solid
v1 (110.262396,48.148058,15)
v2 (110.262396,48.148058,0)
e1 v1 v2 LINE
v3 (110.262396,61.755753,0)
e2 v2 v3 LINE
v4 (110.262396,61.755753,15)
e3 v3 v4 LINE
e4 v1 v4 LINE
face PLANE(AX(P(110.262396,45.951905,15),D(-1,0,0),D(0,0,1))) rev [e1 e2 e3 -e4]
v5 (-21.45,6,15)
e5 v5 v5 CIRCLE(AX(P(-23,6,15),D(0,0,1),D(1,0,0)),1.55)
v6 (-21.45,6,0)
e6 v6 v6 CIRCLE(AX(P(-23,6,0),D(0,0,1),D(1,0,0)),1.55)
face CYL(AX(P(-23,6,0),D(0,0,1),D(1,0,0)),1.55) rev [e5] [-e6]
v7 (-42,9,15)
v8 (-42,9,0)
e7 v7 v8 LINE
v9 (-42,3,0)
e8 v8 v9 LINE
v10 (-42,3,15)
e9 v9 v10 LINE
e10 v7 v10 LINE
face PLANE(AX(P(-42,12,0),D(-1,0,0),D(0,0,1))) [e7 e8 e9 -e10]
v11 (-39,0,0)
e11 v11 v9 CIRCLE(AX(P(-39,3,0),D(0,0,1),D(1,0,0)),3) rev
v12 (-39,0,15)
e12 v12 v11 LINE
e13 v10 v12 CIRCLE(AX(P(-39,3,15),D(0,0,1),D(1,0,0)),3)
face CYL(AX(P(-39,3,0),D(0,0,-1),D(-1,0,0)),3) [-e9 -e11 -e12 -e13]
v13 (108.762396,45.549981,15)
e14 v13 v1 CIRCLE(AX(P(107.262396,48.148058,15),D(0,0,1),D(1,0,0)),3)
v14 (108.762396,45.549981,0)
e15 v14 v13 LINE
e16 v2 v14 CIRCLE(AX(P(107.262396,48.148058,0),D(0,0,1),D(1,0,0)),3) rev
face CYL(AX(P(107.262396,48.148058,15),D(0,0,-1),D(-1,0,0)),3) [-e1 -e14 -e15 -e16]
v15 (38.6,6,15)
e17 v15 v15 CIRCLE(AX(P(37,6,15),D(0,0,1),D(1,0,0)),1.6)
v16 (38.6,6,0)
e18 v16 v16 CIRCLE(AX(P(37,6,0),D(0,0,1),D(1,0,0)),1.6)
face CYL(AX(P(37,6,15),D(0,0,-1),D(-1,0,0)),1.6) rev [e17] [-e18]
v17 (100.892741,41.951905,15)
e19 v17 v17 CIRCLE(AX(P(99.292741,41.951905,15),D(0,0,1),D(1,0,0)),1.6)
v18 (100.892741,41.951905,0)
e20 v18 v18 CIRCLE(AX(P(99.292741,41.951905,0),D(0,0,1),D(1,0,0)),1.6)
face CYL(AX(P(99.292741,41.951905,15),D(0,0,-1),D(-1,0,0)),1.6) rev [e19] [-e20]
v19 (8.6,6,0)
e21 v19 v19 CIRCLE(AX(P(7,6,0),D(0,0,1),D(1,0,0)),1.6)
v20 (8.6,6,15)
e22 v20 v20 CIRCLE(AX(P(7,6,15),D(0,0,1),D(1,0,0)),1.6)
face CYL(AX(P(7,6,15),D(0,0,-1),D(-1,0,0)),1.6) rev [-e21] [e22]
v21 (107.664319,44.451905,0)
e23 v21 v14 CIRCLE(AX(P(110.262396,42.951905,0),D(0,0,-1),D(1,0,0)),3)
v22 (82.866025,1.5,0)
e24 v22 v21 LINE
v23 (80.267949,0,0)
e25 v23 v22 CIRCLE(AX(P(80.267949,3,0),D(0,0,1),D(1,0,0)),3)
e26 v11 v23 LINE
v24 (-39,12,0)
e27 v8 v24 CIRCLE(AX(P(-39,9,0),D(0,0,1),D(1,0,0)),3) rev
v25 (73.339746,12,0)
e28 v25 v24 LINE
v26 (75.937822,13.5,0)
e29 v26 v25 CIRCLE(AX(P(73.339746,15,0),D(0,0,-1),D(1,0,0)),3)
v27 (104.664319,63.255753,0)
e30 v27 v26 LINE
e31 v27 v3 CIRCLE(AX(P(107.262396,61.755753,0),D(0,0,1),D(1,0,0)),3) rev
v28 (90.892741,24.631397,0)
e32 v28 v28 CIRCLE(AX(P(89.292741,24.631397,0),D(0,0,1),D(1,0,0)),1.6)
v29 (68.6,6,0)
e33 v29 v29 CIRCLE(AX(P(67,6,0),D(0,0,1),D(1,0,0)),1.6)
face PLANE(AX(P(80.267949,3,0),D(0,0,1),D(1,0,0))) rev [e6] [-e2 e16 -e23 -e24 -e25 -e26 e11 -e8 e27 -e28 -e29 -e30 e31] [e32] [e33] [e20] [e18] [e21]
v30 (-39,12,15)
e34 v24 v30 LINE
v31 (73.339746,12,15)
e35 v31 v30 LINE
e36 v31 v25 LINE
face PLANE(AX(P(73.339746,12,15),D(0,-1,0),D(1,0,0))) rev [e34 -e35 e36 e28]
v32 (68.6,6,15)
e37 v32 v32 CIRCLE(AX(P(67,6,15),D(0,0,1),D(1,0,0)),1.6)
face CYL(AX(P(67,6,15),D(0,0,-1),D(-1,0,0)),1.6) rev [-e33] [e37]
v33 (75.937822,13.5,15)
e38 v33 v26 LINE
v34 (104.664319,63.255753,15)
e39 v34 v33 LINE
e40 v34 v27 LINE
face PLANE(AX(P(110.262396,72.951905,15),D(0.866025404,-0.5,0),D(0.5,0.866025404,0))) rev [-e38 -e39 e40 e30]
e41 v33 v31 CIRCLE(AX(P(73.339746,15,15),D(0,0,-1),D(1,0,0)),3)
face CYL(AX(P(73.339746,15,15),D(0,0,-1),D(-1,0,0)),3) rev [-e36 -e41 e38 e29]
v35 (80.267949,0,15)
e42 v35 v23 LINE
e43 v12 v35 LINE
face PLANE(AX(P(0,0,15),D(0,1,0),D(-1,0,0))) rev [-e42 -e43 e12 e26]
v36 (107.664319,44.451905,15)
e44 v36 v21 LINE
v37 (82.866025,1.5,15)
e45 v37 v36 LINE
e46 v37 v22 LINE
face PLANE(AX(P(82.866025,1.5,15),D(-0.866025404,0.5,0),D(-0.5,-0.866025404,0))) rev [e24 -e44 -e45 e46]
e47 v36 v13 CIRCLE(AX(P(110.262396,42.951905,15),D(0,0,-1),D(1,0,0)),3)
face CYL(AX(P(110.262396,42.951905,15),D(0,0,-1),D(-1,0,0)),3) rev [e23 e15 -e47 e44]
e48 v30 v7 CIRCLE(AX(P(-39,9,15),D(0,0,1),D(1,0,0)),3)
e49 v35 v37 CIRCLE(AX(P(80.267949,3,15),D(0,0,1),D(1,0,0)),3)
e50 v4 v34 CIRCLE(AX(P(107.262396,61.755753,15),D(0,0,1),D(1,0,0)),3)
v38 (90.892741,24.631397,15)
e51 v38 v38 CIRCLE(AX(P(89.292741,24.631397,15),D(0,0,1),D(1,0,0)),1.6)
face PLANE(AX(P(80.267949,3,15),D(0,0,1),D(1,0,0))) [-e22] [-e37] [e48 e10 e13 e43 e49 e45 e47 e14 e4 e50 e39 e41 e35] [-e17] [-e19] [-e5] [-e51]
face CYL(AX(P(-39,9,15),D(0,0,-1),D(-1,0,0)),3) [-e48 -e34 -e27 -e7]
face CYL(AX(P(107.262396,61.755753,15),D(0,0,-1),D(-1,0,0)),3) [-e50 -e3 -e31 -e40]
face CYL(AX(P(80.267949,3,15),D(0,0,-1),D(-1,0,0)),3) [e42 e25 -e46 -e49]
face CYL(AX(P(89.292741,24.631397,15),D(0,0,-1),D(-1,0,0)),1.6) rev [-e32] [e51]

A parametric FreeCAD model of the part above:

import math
import FreeCAD as App
import Part
import Sketcher
from FreeCAD import Vector
Q = App.Units.Quantity


def edges_at(feature, points):
    """Names of the edges that pass closest to the given points."""
    edges = feature.Shape.Edges
    near = lambda p: min(range(len(edges)), key=lambda i: edges[i].distToShape(Part.Vertex(*p))[0])
    return sorted({f"Edge{near(p) + 1}" for p in points})


def add_polygon(sketch, points):
    """Adds a closed chain of lines whose ends are joined by coincident constraints."""
    first, n = sketch.GeometryCount, len(points)
    for a, b in zip(points, points[1:] + points[:1]):
        sketch.addGeometry(Part.LineSegment(App.Vector(*a, 0), App.Vector(*b, 0)), False)
    for i in range(n):
        sketch.addConstraint(Sketcher.Constraint("Coincident", first + i, 2, first + (i + 1) % n, 1))

doc = App.newDocument("Part")
body = doc.addObject("PartDesign::Body", "Body")

sketch1 = doc.addObject("Sketcher::SketchObject", "Sketch")
body.addObject(sketch1)
sketch1.AttachmentSupport = (doc.XY_Plane, [""])
sketch1.MapMode = "FlatFace"
sketch1.addGeometry([
    Part.LineSegment(Vector(110.3, 46, 0), Vector(110.3, 73, 0)),
    Part.LineSegment(Vector(110.3, 73, 0), Vector(75.9, 13.5, 0)),
    Part.ArcOfCircle(Part.Circle(Vector(73.3, 15, 0), Vector(0, 0, 1), 3), math.radians(-90), math.radians(-30)),
    Part.LineSegment(Vector(73.3, 12, 0), Vector(0, 12, 0)),
    Part.LineSegment(Vector(0, 12, 0), Vector(0, 0, 0)),
    Part.LineSegment(Vector(0, 0, 0), Vector(80.3, 0, 0)),
    Part.ArcOfCircle(Part.Circle(Vector(80.3, 3, 0), Vector(0, 0, 1), 3), math.radians(-90), math.radians(-30)),
    Part.LineSegment(Vector(82.9, 1.5, 0), Vector(107.7, 44.5, 0)),
    Part.ArcOfCircle(Part.Circle(Vector(110.3, 43, 0), Vector(0, 0, 1), 3), math.radians(90), math.radians(150)),
    Part.Circle(Vector(7, 6, 0), Vector(0, 0, 1), 1.6),
    Part.Circle(Vector(37, 6, 0), Vector(0, 0, 1), 1.6),
    Part.Circle(Vector(67, 6, 0), Vector(0, 0, 1), 1.6),
    Part.Circle(Vector(89.3, 24.6, 0), Vector(0, 0, 1), 1.6),
    Part.Circle(Vector(99.3, 42, 0), Vector(0, 0, 1), 1.6),
], False)
sketch1.addConstraint([
    Sketcher.Constraint("Coincident", 0, 2, 1, 1),
    Sketcher.Constraint("Tangent", 1, 2, 2, 2),
    Sketcher.Constraint("Tangent", 2, 1, 3, 1),
    Sketcher.Constraint("Coincident", 3, 2, 4, 1),
    Sketcher.Constraint("Coincident", 4, 2, 5, 1),
    Sketcher.Constraint("Tangent", 5, 2, 6, 1),
    Sketcher.Constraint("Tangent", 6, 2, 7, 1),
    Sketcher.Constraint("Tangent", 7, 2, 8, 2),
    Sketcher.Constraint("Coincident", 8, 1, 0, 1),
    Sketcher.Constraint("Vertical", 0),
    Sketcher.Constraint("Horizontal", 3),
    Sketcher.Constraint("Vertical", 4),
    Sketcher.Constraint("Horizontal", 5),
    Sketcher.Constraint("Coincident", 4, 2, -1, 1),
    Sketcher.Constraint("Equal", 2, 6),
    Sketcher.Constraint("Equal", 6, 8),
    Sketcher.Constraint("Equal", 9, 10),
    Sketcher.Constraint("Equal", 10, 11),
    Sketcher.Constraint("Equal", 11, 12),
    Sketcher.Constraint("Equal", 12, 13),
    Sketcher.Constraint("Parallel", 1, 7),
    Sketcher.Constraint("Horizontal", 9, 3, 10, 3),
    Sketcher.Constraint("Horizontal", 10, 3, 11, 3),
    Sketcher.Constraint("Vertical", 8, 3, 0, 2),
    Sketcher.Constraint("Radius", 2, Q("3 mm")),
    Sketcher.Constraint("Diameter", 9, Q("3.2 mm")),
    Sketcher.Constraint("DistanceY", 0, 1, 0, 2, Q("27 mm")),
    Sketcher.Constraint("DistanceY", 4, 2, 4, 1, Q("12 mm")),
    Sketcher.Constraint("Angle", 1, Q("-120 deg")),
    Sketcher.Constraint("DistanceX", -1, 1, 9, 3, Q("7 mm")),
    Sketcher.Constraint("DistanceY", -1, 1, 9, 3, Q("6 mm")),
    Sketcher.Constraint("DistanceX", -1, 1, 10, 3, Q("37 mm")),
    Sketcher.Constraint("DistanceX", -1, 1, 11, 3, Q("67 mm")),
    Sketcher.Constraint("DistanceY", 13, 3, 8, 3, Q("1 mm")),
    Sketcher.Constraint("DistanceX", 12, 3, 13, 3, Q("10 mm")),
    Sketcher.Constraint("DistanceX", 5, 1, 5, 2, Q("80.267949 mm")),
    Sketcher.Constraint("Distance", 7, Q("49.596588 mm")),
    Sketcher.Constraint("DistanceX", -1, 1, 12, 3, Q("89.292741 mm")),
    Sketcher.Constraint("DistanceY", 12, 3, 8, 3, Q("18.320508 mm")),
])
pad1 = doc.addObject("PartDesign::Pad", "Pad")
body.addObject(pad1)
pad1.Profile = sketch1
pad1.Length = 15
doc.recompute()

fillet = doc.addObject("PartDesign::Fillet", "Fillet")
body.addObject(fillet)
fillet.Base = (pad1, edges_at(pad1, [
    (0, 0, 7.5),
    (0, 12, 7.5),
    (110.262, 72.952, 7.5),
    (110.262, 45.952, 7.5),
]))
fillet.Radius = 3

sketch2 = doc.addObject("Sketcher::SketchObject", "Sketch001")
body.addObject(sketch2)
sketch2.AttachmentSupport = (doc.XY_Plane, [""])
sketch2.MapMode = "FlatFace"
sketch2.AttachmentOffset = App.Placement(Vector(0, 0, 15), App.Rotation())
add_polygon(sketch2, [(-42, 12), (-42, 0), (3, 0), (3, 12)])
sketch2.addGeometry(Part.Circle(Vector(-23, 6, 0), Vector(0, 0, 1), 1.6), False)
sketch2.addConstraint([
    Sketcher.Constraint("Vertical", 0),
    Sketcher.Constraint("Horizontal", 1),
    Sketcher.Constraint("Vertical", 2),
    Sketcher.Constraint("Horizontal", 3),
    Sketcher.Constraint("PointOnObject", 0, 2, -1),
    Sketcher.Constraint("Diameter", 4, Q("3.1 mm")),
    Sketcher.Constraint("DistanceX", 1, 1, 1, 2, Q("45 mm")),
    Sketcher.Constraint("DistanceY", 0, 2, 0, 1, Q("12 mm")),
    Sketcher.Constraint("DistanceX", 4, 3, -1, 1, Q("23 mm")),
    Sketcher.Constraint("DistanceY", -1, 1, 4, 3, Q("6 mm")),
    Sketcher.Constraint("DistanceX", 0, 2, -1, 1, Q("42 mm")),
])
pad2 = doc.addObject("PartDesign::Pad", "Pad001")
body.addObject(pad2)
pad2.Profile = sketch2
pad2.Length = 15
pad2.Reversed = True
doc.recompute()

fillet2 = doc.addObject("PartDesign::Fillet", "Fillet001")
body.addObject(fillet2)
fillet2.Base = (pad2, edges_at(pad2, [(-42, 0, 7.5), (-42, 12, 7.5)]))
fillet2.Radius = 3

doc.recompute()
